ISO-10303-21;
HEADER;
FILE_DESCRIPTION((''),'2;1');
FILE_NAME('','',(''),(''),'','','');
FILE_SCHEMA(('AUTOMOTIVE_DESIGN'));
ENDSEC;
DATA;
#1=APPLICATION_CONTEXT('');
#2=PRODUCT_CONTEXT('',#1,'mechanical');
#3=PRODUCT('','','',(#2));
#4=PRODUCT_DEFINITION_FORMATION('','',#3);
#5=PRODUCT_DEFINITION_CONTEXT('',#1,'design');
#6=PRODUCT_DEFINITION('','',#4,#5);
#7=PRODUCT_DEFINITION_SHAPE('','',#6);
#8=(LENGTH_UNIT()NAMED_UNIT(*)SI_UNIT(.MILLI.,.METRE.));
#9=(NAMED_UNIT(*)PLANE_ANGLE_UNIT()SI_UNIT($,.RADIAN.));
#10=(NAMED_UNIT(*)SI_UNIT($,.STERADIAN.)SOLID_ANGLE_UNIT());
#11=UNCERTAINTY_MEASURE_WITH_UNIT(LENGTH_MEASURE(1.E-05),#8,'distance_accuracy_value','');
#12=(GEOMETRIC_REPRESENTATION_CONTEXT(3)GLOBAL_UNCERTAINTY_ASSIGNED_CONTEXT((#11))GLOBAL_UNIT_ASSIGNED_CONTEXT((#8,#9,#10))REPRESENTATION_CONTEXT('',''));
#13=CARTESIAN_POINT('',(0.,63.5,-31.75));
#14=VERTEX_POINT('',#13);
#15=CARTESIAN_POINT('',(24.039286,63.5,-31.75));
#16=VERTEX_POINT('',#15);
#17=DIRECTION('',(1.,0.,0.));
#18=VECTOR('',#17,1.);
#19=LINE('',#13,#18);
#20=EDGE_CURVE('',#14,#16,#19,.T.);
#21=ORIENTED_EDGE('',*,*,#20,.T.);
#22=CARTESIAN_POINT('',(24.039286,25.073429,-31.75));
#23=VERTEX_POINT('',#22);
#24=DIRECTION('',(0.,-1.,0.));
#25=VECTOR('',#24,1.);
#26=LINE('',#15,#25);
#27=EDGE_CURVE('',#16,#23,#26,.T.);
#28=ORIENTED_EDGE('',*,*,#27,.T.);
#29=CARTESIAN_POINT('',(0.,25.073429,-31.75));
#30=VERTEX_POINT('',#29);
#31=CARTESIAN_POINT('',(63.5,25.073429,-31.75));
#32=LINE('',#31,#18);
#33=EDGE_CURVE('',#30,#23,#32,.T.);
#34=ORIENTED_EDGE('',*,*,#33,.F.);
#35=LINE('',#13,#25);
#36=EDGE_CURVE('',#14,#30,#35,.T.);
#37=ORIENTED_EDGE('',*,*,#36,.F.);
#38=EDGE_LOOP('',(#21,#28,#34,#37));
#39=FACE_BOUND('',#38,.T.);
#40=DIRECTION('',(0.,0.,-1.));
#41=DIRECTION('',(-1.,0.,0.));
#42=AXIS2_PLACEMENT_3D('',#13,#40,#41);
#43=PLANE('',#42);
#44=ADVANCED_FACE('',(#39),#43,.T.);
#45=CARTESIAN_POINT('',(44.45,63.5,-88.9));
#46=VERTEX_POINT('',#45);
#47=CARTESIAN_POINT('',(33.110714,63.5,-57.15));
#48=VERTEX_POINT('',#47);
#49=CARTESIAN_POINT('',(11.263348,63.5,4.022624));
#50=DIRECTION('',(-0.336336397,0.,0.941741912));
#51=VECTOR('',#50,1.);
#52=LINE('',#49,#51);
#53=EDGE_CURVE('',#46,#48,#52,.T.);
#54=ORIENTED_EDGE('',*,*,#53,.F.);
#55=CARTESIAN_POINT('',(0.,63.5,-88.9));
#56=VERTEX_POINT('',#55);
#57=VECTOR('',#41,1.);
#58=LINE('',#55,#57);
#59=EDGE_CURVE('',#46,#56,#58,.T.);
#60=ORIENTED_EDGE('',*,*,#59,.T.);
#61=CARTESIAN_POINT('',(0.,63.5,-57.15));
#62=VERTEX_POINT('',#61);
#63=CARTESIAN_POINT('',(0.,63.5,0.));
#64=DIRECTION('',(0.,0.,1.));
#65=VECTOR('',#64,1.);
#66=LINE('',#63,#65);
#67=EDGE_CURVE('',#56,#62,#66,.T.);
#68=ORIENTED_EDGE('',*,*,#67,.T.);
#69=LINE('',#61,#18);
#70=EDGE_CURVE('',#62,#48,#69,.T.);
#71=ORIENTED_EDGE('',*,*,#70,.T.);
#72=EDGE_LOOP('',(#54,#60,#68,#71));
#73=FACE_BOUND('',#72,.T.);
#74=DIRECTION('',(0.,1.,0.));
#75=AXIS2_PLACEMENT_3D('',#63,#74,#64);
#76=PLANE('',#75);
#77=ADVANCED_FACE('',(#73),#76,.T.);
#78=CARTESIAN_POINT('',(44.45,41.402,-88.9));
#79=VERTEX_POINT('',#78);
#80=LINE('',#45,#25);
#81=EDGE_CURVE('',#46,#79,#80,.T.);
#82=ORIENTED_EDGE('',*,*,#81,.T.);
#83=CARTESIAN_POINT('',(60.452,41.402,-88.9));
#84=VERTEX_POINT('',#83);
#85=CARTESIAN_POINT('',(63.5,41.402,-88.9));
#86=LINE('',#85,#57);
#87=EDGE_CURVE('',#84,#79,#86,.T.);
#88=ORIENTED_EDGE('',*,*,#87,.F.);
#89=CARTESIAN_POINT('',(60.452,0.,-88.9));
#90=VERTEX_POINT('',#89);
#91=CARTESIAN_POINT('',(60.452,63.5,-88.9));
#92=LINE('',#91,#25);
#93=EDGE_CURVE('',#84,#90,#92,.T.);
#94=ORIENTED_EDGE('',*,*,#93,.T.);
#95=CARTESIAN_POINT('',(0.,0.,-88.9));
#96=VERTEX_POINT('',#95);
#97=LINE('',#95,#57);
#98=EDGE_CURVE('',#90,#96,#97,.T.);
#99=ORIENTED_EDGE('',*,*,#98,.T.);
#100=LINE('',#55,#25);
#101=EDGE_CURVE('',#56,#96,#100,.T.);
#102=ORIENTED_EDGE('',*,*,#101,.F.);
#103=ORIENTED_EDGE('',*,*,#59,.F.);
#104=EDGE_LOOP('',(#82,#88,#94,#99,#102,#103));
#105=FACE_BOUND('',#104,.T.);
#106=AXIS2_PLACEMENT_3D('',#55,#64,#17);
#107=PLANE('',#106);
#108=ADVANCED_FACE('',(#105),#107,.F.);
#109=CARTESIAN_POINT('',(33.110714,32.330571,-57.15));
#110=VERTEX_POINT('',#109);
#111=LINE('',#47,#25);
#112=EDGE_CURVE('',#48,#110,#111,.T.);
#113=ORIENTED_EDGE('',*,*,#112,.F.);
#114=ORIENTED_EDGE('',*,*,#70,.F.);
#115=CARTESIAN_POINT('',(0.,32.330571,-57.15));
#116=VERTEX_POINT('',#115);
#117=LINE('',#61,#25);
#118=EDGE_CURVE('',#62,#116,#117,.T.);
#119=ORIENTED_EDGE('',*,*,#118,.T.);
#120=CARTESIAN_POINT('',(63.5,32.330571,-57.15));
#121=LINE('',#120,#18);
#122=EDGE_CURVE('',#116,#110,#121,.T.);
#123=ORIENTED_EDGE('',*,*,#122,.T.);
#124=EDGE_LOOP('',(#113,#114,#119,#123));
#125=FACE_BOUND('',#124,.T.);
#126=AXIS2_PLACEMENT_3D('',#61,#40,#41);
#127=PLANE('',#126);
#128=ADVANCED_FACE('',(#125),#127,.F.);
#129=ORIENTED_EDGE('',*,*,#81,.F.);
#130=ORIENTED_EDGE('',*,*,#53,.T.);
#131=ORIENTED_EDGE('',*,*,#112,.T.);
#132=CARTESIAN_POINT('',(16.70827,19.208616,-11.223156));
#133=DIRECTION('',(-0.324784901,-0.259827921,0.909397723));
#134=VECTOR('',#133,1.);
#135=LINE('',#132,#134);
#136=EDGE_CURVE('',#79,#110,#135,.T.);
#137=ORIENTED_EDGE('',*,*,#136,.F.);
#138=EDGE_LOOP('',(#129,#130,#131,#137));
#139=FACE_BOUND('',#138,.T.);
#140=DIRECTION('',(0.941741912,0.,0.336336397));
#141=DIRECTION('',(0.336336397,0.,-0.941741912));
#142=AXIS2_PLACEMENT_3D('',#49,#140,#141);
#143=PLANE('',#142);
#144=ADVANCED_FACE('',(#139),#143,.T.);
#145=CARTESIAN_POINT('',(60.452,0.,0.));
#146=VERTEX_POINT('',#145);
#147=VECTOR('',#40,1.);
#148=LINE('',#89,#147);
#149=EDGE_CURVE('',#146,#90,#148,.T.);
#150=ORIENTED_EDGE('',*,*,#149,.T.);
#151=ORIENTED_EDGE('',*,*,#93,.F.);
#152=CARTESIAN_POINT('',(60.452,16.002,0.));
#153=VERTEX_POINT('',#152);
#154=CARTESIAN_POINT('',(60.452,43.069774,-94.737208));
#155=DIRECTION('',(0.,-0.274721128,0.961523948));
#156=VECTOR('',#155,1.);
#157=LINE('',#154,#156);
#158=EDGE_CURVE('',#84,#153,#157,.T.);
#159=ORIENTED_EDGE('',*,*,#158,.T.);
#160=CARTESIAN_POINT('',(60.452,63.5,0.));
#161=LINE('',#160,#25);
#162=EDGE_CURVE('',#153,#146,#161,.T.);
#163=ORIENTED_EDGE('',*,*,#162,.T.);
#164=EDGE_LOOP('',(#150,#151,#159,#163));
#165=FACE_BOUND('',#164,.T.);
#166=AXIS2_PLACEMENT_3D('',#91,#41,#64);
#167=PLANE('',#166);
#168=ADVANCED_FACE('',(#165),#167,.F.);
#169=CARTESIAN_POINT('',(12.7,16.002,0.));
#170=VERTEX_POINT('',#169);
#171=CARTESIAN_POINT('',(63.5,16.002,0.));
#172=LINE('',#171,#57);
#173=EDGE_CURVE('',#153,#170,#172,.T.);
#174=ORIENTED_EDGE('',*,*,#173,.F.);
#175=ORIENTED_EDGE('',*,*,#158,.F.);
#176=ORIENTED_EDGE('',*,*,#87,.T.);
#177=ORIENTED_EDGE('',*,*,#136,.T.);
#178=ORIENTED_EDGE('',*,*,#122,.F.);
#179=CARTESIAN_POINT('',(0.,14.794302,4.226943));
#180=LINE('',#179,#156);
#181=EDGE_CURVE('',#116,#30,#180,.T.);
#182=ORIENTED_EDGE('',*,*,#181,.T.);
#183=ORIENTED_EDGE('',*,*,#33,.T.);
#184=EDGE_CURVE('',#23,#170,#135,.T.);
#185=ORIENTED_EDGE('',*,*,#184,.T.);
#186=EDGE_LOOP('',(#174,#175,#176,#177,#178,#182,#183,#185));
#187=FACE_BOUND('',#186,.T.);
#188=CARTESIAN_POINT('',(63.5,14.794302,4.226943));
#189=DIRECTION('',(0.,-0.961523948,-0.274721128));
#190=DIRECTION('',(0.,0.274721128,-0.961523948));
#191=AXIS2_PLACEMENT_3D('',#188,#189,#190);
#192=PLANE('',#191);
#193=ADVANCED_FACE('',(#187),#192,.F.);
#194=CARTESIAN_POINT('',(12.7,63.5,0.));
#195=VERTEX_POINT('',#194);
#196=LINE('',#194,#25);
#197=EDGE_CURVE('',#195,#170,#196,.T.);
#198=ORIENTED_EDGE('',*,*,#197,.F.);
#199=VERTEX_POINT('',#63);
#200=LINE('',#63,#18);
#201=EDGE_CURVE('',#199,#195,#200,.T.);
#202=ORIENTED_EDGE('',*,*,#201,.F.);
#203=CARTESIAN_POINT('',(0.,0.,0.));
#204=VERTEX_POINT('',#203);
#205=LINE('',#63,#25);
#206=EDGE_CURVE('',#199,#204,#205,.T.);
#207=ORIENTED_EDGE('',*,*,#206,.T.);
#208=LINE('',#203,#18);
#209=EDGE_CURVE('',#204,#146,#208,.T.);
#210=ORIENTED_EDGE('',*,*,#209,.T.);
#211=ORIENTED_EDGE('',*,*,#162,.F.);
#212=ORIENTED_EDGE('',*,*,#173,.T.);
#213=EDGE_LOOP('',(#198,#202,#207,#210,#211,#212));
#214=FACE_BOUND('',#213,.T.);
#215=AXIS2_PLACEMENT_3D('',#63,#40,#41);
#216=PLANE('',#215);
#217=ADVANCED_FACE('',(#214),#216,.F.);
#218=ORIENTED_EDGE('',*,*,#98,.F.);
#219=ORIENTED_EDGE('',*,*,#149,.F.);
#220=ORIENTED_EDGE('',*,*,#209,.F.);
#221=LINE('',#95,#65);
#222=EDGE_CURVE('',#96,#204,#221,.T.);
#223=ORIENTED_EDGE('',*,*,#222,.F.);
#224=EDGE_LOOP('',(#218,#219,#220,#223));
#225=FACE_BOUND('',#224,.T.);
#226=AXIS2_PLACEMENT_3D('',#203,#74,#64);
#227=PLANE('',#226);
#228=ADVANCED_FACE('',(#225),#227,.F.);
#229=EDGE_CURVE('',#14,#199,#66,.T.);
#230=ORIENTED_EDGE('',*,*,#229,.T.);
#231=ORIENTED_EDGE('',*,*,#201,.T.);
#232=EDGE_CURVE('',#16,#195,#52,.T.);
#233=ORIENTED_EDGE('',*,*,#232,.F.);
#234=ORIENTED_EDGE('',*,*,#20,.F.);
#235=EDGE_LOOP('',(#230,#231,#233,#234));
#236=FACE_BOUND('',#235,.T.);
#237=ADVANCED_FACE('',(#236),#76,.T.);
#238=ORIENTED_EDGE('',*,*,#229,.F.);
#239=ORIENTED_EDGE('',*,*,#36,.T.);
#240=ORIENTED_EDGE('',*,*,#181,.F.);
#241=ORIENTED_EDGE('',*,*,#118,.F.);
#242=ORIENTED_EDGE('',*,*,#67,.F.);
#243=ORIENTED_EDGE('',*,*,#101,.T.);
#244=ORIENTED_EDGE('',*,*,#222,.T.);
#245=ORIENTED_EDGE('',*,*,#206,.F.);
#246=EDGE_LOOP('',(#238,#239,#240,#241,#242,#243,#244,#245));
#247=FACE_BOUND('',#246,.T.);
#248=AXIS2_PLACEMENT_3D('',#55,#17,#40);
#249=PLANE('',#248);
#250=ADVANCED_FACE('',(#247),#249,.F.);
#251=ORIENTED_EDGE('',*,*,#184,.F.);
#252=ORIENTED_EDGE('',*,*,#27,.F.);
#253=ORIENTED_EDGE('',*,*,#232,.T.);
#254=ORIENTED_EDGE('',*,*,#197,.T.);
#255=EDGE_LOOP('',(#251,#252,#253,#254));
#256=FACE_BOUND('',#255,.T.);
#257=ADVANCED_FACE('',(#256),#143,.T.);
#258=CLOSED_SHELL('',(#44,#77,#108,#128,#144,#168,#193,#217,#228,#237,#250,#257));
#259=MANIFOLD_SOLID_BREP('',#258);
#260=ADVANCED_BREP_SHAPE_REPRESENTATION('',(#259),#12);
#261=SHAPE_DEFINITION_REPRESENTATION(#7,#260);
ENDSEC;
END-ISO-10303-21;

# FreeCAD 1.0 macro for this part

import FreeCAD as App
import Part
import Sketcher

V = App.Vector
Q = App.Units.Quantity


def add_polygon(sketch, points):
    """Adds a closed chain of lines whose ends are joined by coincident constraints."""
    first, n = sketch.GeometryCount, len(points)
    for a, b in zip(points, points[1:] + points[:1]):
        sketch.addGeometry(Part.LineSegment(App.Vector(*a, 0), App.Vector(*b, 0)), False)
    for i in range(n):
        sketch.addConstraint(Sketcher.Constraint("Coincident", first + i, 2, first + (i + 1) % n, 1))

doc = App.newDocument("Part")
body = doc.addObject("PartDesign::Body", "Body")

# Sketch on XZ plane
sketch1 = doc.addObject("Sketcher::SketchObject", "Sketch")
body.addObject(sketch1)
sketch1.AttachmentSupport = (doc.XZ_Plane, [""])
sketch1.MapMode = "FlatFace"
add_polygon(sketch1, [(0, -89), (0, 0), (60, 0), (60, -89)])  # lines 0-3
sketch1.addConstraint([
    Sketcher.Constraint("Vertical", 0),
    Sketcher.Constraint("Horizontal", 1),
    Sketcher.Constraint("Vertical", 2),
    Sketcher.Constraint("Horizontal", 3),
    Sketcher.Constraint("Coincident", 0, 2, -1, 1),
    Sketcher.Constraint("DistanceY", 0, 1, 0, 2, Q("3.5 in")),
    Sketcher.Constraint("DistanceX", 1, 1, 1, 2, Q("2.38 in")),
])
pad1 = doc.addObject("PartDesign::Pad", "Pad")
body.addObject(pad1)
pad1.Profile = sketch1
pad1.Length = Q("2.5 in")
pad1.Reversed = True

# Sketch on YZ plane
sketch2 = doc.addObject("Sketcher::SketchObject", "Sketch001")
body.addObject(sketch2)
sketch2.AttachmentSupport = (doc.YZ_Plane, [""])
sketch2.MapMode = "FlatFace"
add_polygon(sketch2, [(16, 0), (41, -89), (64, -89), (64, 0)])  # lines 0-3
sketch2.addConstraint([
    Sketcher.Constraint("Horizontal", 1),
    Sketcher.Constraint("Vertical", 2),
    Sketcher.Constraint("Horizontal", 3),
    Sketcher.Constraint("PointOnObject", 2, 2, -1),
    Sketcher.Constraint("DistanceY", 2, 1, 2, 2, Q("3.5 in")),
    Sketcher.Constraint("DistanceX", 3, 2, 0, 2, Q("1 in")),
    Sketcher.Constraint("DistanceX", 1, 1, 1, 2, Q("0.87 in")),
    Sketcher.Constraint("DistanceX", -1, 1, 1, 2, Q("2.5 in")),
])
pocket1 = doc.addObject("PartDesign::Pocket", "Pocket")
body.addObject(pocket1)
pocket1.Profile = sketch2
pocket1.Length = Q("2.5 in")
pocket1.Reversed = True

# Sketch on XZ plane
sketch3 = doc.addObject("Sketcher::SketchObject", "Sketch002")
body.addObject(sketch3)
sketch3.AttachmentSupport = (doc.XZ_Plane, [""])
sketch3.MapMode = "FlatFace"
add_polygon(sketch3, [(33, -57), (44, -89), (0, -89), (0, -57)])  # lines 0-3
add_polygon(sketch3, [(13, 0), (24, -32), (0, -32), (0, 0)])  # lines 4-7
sketch3.addConstraint([
    Sketcher.Constraint("Horizontal", 1),
    Sketcher.Constraint("Vertical", 2),
    Sketcher.Constraint("Horizontal", 3),
    Sketcher.Constraint("Horizontal", 5),
    Sketcher.Constraint("Vertical", 6),
    Sketcher.Constraint("Horizontal", 7),
    Sketcher.Constraint("Coincident", 6, 2, -1, 1),
    Sketcher.Constraint("PointOnObject", 1, 2, -2),
    Sketcher.Constraint("Parallel", 0, 4),
    Sketcher.Constraint("Equal", 2, 6),
    Sketcher.Constraint("DistanceX", 7, 1, 7, 2, Q("0.5 in")),
    Sketcher.Constraint("DistanceY", 3, 2, 4, 2, Q("1 in")),
    Sketcher.Constraint("DistanceX", 1, 2, 1, 1, Q("1.75 in")),
    Sketcher.Constraint("DistanceY", 2, 1, 2, 2, Q("1.25 in")),
    Sketcher.Constraint("Distance", 0, 33.71412),
])
pad2 = doc.addObject("PartDesign::Pad", "Pad001")
body.addObject(pad2)
pad2.Profile = sketch3
pad2.Length = Q("2.5 in")
pad2.Reversed = True

doc.recompute()
